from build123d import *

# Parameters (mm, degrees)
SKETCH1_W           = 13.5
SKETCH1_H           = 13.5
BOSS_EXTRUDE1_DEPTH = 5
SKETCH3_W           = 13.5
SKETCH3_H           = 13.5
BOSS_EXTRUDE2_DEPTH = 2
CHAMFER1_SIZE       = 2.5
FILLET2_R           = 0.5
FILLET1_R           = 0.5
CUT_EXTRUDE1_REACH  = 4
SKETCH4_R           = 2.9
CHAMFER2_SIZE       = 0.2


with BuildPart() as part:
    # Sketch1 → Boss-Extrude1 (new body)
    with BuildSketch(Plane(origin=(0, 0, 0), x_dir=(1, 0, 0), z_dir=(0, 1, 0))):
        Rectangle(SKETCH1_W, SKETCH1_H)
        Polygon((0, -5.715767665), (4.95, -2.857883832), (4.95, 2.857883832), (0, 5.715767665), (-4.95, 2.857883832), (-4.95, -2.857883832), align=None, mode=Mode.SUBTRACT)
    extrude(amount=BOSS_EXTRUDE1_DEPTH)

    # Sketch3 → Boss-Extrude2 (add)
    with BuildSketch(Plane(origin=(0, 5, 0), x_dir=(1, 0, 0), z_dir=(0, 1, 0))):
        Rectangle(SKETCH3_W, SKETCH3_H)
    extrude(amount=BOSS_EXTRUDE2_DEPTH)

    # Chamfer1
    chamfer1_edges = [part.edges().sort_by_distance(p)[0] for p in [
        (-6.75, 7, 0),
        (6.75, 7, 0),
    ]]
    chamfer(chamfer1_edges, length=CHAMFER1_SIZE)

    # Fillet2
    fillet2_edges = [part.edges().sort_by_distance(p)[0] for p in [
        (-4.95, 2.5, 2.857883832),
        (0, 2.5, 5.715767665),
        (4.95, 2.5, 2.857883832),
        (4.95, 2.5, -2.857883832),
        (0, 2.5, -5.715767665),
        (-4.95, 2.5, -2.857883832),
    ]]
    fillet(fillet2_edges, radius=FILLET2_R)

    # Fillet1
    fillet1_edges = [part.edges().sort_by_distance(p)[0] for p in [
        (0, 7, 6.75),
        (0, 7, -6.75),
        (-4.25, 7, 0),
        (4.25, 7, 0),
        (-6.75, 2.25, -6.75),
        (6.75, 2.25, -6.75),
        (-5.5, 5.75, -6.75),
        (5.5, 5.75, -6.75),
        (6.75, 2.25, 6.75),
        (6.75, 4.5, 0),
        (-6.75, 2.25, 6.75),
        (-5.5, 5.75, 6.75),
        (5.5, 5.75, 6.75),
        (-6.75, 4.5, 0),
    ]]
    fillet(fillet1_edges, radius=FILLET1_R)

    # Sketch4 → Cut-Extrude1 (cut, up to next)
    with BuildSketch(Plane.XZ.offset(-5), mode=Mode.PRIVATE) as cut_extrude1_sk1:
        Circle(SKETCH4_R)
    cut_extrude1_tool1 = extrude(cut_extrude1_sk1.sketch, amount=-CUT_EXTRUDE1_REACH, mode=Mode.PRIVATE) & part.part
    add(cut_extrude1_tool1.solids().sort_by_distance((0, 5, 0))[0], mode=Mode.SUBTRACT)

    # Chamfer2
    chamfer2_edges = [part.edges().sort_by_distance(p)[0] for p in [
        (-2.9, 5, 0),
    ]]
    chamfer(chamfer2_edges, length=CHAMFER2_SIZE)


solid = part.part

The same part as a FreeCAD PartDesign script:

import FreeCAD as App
import Part
import Sketcher

V = App.Vector
Q = App.Units.Quantity


def edges_at(feature, points):
    """Names of the edges that pass closest to the given points."""
    edges = feature.Shape.Edges
    near = lambda p: min(range(len(edges)), key=lambda i: edges[i].distToShape(Part.Vertex(*p))[0])
    return sorted({f"Edge{near(p) + 1}" for p in points})

doc = App.newDocument("Part")
body = doc.addObject("PartDesign::Body", "Body")

# Sketch on XZ plane
sketch1 = body.newObject("Sketcher::SketchObject", "Sketch")
sketch1.AttachmentSupport = (doc.getObject("XZ_Plane"), [""])
sketch1.MapMode = "FlatFace"
sketch1.addGeometry(Part.LineSegment(V(-7, -7, 0), V(-7, 7, 0)), False)
sketch1.addGeometry(Part.LineSegment(V(-7, 7, 0), V(7, 7, 0)), False)
sketch1.addGeometry(Part.LineSegment(V(7, 7, 0), V(7, -7, 0)), False)
sketch1.addGeometry(Part.LineSegment(V(7, -7, 0), V(-7, -7, 0)), False)
sketch1.addGeometry(Part.LineSegment(V(5, 3, 0), V(0, 6, 0)), False)
sketch1.addGeometry(Part.LineSegment(V(0, 6, 0), V(-5, 3, 0)), False)
sketch1.addGeometry(Part.LineSegment(V(-5, 3, 0), V(-5, -3, 0)), False)
sketch1.addGeometry(Part.LineSegment(V(-5, -3, 0), V(0, -6, 0)), False)
sketch1.addGeometry(Part.LineSegment(V(0, -6, 0), V(5, -3, 0)), False)
sketch1.addGeometry(Part.LineSegment(V(5, -3, 0), V(5, 3, 0)), False)
sketch1.addConstraint(Sketcher.Constraint("Coincident", 0, 2, 1, 1))
sketch1.addConstraint(Sketcher.Constraint("Coincident", 1, 2, 2, 1))
sketch1.addConstraint(Sketcher.Constraint("Coincident", 2, 2, 3, 1))
sketch1.addConstraint(Sketcher.Constraint("Coincident", 3, 2, 0, 1))
sketch1.addConstraint(Sketcher.Constraint("Coincident", 4, 2, 5, 1))
sketch1.addConstraint(Sketcher.Constraint("Coincident", 5, 2, 6, 1))
sketch1.addConstraint(Sketcher.Constraint("Coincident", 6, 2, 7, 1))
sketch1.addConstraint(Sketcher.Constraint("Coincident", 7, 2, 8, 1))
sketch1.addConstraint(Sketcher.Constraint("Coincident", 8, 2, 9, 1))
sketch1.addConstraint(Sketcher.Constraint("Coincident", 9, 2, 4, 1))
sketch1.addConstraint(Sketcher.Constraint("Vertical", 0))
sketch1.addConstraint(Sketcher.Constraint("Horizontal", 1))
sketch1.addConstraint(Sketcher.Constraint("Vertical", 2))
sketch1.addConstraint(Sketcher.Constraint("Horizontal", 3))
sketch1.addConstraint(Sketcher.Constraint("Vertical", 6))
sketch1.addConstraint(Sketcher.Constraint("Vertical", 9))
sketch1.addConstraint(Sketcher.Constraint("Symmetric", 0, 2, 2, 2, -1, 1))
sketch1.addConstraint(Sketcher.Constraint("Symmetric", 4, 2, 7, 2, -1, 1))
sketch1.addConstraint(Sketcher.Constraint("Symmetric", 5, 2, 8, 2, -1, 1))
sketch1.addConstraint(Sketcher.Constraint("PointOnObject", 4, 2, -2))
sketch1.addConstraint(Sketcher.Constraint("Parallel", 4, 7))
sketch1.addConstraint(Sketcher.Constraint("Horizontal", 6, 2, 8, 2))
sketch1.addConstraint(Sketcher.Constraint("Equal", 3, 0))
sketch1.addConstraint(Sketcher.Constraint("Angle", 4, Q("150 deg")))
sketch1.addConstraint(Sketcher.Constraint("DistanceX", 1, 1, 1, 2, Q("13.5 mm")))
sketch1.addConstraint(Sketcher.Constraint("DistanceX", 0, 2, 5, 2, Q("1.8 mm")))
sketch1.addConstraint(Sketcher.Constraint("DistanceY", 6, 2, 6, 1, Q("5.715768 mm")))
pad1 = body.newObject("PartDesign::Pad", "Pad")
pad1.Profile = sketch1
pad1.Length = 5
pad1.Reversed = True

# Sketch on XZ plane
sketch2 = body.newObject("Sketcher::SketchObject", "Sketch001")
sketch2.AttachmentSupport = (doc.getObject("XZ_Plane"), [""])
sketch2.MapMode = "FlatFace"
sketch2.AttachmentOffset = App.Placement(V(0, 0, -5), App.Rotation())
sketch2.addGeometry(Part.LineSegment(V(-7, -7, 0), V(-7, 7, 0)), False)
sketch2.addGeometry(Part.LineSegment(V(-7, 7, 0), V(7, 7, 0)), False)
sketch2.addGeometry(Part.LineSegment(V(7, 7, 0), V(7, -7, 0)), False)
sketch2.addGeometry(Part.LineSegment(V(7, -7, 0), V(-7, -7, 0)), False)
sketch2.addConstraint(Sketcher.Constraint("Coincident", 0, 2, 1, 1))
sketch2.addConstraint(Sketcher.Constraint("Coincident", 1, 2, 2, 1))
sketch2.addConstraint(Sketcher.Constraint("Coincident", 2, 2, 3, 1))
sketch2.addConstraint(Sketcher.Constraint("Coincident", 3, 2, 0, 1))
sketch2.addConstraint(Sketcher.Constraint("Vertical", 0))
sketch2.addConstraint(Sketcher.Constraint("Horizontal", 1))
sketch2.addConstraint(Sketcher.Constraint("Vertical", 2))
sketch2.addConstraint(Sketcher.Constraint("Horizontal", 3))
sketch2.addConstraint(Sketcher.Constraint("Symmetric", 0, 2, 2, 2, -1, 1))
sketch2.addConstraint(Sketcher.Constraint("Equal", 3, 0))
sketch2.addConstraint(Sketcher.Constraint("DistanceX", 1, 1, 1, 2, Q("13.5 mm")))
pad2 = body.newObject("PartDesign::Pad", "Pad001")
pad2.Profile = sketch2
pad2.Length = 2
pad2.Reversed = True
doc.recompute()

chamfer = body.newObject("PartDesign::Chamfer", "Chamfer")
chamfer.Base = (pad2, edges_at(pad2, [(-6.75, 7, 0), (6.75, 7, 0)]))
chamfer.Size = 2.5
doc.recompute()

fillet = body.newObject("PartDesign::Fillet", "Fillet")
fillet.Base = (chamfer, edges_at(chamfer, [
    (-4.95, 2.5, 2.858),
    (0, 2.5, 5.716),
    (4.95, 2.5, 2.858),
    (4.95, 2.5, -2.858),
    (0, 2.5, -5.716),
    (-4.95, 2.5, -2.858),
]))
fillet.Radius = 0.5
doc.recompute()

fillet2 = body.newObject("PartDesign::Fillet", "Fillet001")
fillet2.Base = (fillet, edges_at(fillet, [
    (0, 7, 6.75),
    (0, 7, -6.75),
    (-4.25, 7, 0),
    (4.25, 7, 0),
    (-6.75, 2.25, -6.75),
    (6.75, 2.25, -6.75),
    (-5.5, 5.75, -6.75),
    (5.5, 5.75, -6.75),
    (6.75, 2.25, 6.75),
    (6.75, 4.5, 0),
    (-6.75, 2.25, 6.75),
    (-5.5, 5.75, 6.75),
    (5.5, 5.75, 6.75),
    (-6.75, 4.5, 0),
]))
fillet2.Radius = 0.5

# Sketch on XZ plane
sketch3 = body.newObject("Sketcher::SketchObject", "Sketch002")
sketch3.AttachmentSupport = (doc.getObject("XZ_Plane"), [""])
sketch3.MapMode = "FlatFace"
sketch3.AttachmentOffset = App.Placement(V(0, 0, -5), App.Rotation())
sketch3.addGeometry(Part.Circle(V(0, 0, 0), V(0, 0, 1), 2.9), False)
sketch3.addConstraint(Sketcher.Constraint("Coincident", 0, 3, -1, 1))
sketch3.addConstraint(Sketcher.Constraint("Diameter", 0, Q("5.8 mm")))
pocket1 = body.newObject("PartDesign::Pocket", "Pocket")
pocket1.Profile = sketch3
pocket1.Type = "UpToFirst"
doc.recompute()

chamfer2 = body.newObject("PartDesign::Chamfer", "Chamfer001")
chamfer2.Base = (pocket1, edges_at(pocket1, [(-2.9, 5, 0)]))
chamfer2.Size = 0.2

doc.recompute()
